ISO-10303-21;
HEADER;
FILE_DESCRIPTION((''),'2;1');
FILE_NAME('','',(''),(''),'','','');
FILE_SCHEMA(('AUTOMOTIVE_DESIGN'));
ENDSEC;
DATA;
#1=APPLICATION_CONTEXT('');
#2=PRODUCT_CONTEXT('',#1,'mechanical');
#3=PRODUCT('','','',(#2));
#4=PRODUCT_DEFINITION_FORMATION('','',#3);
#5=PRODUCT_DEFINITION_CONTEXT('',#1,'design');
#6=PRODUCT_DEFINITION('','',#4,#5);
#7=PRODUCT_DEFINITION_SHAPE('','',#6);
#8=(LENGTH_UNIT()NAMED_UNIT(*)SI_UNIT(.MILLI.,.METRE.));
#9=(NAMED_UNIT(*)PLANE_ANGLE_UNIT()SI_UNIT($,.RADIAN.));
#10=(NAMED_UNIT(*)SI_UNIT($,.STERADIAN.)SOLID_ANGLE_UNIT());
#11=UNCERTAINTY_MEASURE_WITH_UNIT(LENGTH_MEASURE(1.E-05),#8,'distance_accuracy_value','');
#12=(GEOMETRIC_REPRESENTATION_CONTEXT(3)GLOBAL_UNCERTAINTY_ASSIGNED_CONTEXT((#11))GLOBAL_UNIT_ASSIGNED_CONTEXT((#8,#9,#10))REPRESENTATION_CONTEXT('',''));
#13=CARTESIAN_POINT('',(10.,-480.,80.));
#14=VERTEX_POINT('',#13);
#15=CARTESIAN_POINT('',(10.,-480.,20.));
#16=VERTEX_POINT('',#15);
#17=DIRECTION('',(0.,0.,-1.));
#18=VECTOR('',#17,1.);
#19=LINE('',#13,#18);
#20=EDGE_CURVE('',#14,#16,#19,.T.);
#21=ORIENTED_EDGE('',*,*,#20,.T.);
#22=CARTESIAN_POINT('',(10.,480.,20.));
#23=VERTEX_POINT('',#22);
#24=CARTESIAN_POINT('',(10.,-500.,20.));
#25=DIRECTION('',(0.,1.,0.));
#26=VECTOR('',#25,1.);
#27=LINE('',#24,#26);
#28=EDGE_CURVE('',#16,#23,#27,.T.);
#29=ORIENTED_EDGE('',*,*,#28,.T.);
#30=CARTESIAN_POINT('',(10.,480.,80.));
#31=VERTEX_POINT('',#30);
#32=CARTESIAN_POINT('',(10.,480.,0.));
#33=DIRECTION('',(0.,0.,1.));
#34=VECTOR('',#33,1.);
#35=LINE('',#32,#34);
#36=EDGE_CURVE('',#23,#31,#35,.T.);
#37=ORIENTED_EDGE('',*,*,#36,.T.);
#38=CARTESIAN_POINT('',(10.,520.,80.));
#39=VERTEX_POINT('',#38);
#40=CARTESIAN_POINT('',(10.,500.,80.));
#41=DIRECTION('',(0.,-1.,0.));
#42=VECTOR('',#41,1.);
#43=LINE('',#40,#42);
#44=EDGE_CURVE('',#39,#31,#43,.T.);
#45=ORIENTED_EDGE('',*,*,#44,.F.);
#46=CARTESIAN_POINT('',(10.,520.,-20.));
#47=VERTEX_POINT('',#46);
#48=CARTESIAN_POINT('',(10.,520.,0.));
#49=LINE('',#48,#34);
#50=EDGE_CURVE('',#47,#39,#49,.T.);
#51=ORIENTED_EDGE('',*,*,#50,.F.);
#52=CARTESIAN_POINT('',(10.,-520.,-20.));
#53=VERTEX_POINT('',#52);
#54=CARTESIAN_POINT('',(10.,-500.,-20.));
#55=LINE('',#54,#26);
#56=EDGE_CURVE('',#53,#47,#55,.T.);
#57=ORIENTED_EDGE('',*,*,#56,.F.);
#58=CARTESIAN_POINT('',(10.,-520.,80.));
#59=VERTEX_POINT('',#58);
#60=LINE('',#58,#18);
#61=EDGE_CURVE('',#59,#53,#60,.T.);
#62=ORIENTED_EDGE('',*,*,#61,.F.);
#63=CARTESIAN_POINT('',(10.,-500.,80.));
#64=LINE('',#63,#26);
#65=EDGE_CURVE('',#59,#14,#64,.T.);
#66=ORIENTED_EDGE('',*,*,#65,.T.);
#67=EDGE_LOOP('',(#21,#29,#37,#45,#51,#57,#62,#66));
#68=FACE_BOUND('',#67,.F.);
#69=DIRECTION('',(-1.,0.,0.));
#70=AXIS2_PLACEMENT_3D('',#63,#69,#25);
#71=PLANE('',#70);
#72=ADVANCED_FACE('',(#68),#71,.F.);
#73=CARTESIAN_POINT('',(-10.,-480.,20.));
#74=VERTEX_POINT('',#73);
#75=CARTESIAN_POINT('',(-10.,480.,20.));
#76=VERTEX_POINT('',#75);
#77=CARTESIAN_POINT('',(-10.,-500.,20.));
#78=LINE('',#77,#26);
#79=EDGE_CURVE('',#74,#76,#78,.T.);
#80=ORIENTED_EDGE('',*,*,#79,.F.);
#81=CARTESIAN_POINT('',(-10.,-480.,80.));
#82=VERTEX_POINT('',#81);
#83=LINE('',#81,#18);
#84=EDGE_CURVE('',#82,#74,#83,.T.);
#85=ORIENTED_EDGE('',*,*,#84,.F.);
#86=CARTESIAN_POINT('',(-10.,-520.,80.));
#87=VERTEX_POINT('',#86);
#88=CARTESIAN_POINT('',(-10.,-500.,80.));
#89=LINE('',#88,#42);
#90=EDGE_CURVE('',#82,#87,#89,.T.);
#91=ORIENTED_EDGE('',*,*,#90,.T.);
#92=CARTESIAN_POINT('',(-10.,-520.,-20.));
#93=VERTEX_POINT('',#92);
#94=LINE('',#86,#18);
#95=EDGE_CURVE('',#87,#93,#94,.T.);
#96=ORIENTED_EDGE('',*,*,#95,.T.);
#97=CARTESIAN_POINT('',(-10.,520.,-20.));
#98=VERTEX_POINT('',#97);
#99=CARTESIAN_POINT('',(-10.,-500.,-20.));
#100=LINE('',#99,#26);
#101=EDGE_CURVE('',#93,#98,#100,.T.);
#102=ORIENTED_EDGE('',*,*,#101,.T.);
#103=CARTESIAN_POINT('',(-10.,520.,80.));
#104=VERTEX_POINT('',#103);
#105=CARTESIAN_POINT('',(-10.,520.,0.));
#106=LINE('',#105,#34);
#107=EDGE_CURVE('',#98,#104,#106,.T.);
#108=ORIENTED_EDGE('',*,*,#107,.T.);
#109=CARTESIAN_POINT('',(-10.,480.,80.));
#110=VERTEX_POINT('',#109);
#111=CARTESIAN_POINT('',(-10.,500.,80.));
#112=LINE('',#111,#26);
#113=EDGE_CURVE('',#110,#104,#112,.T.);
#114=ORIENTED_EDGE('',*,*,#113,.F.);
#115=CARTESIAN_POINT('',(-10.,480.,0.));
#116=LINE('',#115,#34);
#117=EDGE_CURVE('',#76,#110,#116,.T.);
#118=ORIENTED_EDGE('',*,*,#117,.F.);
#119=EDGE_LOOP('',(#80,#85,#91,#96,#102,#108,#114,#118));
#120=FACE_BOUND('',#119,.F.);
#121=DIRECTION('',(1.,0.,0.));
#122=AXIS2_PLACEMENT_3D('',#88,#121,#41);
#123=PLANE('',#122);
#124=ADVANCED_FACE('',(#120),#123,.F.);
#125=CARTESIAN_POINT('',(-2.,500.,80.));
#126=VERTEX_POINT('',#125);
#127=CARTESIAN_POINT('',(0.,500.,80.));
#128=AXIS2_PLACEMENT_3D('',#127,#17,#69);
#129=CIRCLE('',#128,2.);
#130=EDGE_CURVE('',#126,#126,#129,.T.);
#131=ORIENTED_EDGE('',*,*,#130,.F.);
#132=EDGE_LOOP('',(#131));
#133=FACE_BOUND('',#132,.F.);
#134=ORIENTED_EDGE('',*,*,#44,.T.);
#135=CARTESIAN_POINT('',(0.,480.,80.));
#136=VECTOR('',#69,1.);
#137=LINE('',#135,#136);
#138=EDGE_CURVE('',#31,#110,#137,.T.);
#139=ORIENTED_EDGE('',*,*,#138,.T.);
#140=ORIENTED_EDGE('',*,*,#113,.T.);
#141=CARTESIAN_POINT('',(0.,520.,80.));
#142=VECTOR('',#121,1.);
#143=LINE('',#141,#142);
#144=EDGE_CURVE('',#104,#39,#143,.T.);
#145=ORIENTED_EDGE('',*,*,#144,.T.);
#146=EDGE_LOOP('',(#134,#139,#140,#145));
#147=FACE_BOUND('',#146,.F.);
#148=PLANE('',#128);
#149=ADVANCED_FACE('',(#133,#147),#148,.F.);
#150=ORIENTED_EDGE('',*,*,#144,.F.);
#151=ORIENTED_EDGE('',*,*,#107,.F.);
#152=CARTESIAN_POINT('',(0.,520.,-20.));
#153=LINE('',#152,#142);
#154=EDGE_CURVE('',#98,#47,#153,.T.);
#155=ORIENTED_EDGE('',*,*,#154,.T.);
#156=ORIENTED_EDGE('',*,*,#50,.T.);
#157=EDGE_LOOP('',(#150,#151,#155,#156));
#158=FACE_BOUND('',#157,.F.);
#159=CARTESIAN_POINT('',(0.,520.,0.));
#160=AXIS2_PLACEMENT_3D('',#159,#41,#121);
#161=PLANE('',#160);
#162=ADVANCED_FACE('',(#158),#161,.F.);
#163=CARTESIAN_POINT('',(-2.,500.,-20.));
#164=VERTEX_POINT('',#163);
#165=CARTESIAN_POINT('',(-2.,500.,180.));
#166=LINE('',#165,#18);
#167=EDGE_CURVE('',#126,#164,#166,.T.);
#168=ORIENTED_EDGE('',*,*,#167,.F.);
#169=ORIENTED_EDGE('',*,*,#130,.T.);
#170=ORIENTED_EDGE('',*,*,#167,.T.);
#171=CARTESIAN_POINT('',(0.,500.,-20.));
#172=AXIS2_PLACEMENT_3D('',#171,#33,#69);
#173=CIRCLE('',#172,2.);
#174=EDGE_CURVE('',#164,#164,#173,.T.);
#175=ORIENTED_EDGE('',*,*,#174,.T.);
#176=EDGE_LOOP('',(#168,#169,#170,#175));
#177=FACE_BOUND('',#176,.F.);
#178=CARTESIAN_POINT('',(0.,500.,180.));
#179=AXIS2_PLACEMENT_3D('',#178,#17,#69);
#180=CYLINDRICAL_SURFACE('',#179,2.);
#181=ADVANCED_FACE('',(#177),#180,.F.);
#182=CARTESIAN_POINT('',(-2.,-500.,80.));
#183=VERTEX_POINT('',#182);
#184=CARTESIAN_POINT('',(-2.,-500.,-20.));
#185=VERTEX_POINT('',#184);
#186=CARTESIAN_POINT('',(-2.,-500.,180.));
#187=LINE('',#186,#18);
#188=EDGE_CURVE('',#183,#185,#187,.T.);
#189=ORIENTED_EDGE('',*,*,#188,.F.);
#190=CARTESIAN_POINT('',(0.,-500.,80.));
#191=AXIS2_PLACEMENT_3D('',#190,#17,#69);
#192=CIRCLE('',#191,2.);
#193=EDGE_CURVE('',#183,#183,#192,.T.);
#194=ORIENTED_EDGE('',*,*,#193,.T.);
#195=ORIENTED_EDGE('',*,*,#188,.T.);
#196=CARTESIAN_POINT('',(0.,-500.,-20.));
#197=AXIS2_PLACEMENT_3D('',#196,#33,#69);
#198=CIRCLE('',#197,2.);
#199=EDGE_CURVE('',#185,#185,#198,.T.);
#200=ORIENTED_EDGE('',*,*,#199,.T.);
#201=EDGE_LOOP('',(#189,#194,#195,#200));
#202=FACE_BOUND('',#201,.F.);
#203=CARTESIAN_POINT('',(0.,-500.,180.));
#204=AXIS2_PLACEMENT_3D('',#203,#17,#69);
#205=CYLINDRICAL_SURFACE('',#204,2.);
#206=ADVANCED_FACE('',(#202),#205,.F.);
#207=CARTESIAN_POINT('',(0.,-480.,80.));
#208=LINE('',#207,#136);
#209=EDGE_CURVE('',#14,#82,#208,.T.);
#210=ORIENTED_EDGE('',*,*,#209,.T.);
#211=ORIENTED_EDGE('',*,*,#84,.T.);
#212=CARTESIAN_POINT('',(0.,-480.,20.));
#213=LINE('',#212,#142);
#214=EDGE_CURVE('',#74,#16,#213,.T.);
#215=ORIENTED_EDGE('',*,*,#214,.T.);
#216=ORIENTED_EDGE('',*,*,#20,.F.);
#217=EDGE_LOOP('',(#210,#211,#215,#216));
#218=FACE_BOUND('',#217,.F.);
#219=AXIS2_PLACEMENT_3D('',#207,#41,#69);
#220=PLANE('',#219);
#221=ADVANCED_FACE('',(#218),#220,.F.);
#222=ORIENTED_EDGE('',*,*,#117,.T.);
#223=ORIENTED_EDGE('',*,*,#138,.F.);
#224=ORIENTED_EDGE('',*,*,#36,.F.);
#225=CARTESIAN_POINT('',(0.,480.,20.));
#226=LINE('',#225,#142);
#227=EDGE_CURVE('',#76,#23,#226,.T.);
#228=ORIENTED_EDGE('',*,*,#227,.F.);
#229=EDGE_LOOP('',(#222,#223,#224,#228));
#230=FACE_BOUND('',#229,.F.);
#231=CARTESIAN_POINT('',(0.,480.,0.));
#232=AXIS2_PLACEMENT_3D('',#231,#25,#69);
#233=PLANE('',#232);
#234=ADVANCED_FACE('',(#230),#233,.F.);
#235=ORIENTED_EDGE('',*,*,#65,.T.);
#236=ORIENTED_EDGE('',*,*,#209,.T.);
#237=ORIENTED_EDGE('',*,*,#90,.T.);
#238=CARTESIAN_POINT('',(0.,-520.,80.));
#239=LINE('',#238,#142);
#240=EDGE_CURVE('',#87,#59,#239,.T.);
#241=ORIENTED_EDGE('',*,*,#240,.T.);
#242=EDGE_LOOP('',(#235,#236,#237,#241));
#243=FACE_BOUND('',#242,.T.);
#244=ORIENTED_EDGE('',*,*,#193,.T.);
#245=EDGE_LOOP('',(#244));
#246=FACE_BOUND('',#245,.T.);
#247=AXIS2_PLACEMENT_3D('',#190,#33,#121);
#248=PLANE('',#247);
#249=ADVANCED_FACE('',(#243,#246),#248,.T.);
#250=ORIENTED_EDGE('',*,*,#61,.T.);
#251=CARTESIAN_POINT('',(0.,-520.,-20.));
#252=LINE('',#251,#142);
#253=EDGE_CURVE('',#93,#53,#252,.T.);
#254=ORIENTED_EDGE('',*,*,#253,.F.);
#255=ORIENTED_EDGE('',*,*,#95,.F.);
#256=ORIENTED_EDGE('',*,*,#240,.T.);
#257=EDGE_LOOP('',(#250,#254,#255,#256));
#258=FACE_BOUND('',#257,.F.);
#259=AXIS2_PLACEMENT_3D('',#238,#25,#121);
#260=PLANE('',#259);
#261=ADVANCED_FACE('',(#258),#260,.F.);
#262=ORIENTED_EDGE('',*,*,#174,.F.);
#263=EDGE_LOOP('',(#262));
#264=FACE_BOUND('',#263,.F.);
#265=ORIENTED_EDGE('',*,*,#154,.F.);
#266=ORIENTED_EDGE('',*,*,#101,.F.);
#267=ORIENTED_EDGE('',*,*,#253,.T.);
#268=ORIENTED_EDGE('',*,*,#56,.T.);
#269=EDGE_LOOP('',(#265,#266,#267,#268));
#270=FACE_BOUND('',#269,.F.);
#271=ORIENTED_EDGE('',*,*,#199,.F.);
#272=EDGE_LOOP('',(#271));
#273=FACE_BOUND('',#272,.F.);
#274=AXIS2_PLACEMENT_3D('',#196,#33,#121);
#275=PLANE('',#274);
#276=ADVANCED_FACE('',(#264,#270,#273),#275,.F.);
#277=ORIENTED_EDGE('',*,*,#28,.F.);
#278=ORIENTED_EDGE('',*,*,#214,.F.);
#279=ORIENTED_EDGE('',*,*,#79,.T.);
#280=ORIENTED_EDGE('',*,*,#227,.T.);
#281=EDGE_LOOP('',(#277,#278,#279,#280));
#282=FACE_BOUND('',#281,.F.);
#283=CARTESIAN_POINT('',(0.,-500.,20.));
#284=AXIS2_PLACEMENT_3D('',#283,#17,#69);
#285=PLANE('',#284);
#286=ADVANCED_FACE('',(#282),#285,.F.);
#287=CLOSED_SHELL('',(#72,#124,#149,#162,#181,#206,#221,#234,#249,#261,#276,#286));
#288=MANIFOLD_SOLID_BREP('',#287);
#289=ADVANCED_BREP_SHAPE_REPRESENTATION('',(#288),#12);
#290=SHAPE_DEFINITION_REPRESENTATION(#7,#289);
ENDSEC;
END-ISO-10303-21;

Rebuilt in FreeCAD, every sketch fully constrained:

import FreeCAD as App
import Part
import Sketcher
Q = App.Units.Quantity


def add_polygon(sketch, points):
    """Adds a closed chain of lines whose ends are joined by coincident constraints."""
    first, n = sketch.GeometryCount, len(points)
    for a, b in zip(points, points[1:] + points[:1]):
        sketch.addGeometry(Part.LineSegment(App.Vector(*a, 0), App.Vector(*b, 0)), False)
    for i in range(n):
        sketch.addConstraint(Sketcher.Constraint("Coincident", first + i, 2, first + (i + 1) % n, 1))

doc = App.newDocument("Part")
body = doc.addObject("PartDesign::Body", "Body")

sketch1 = body.newObject("Sketcher::SketchObject", "Sketch")
sketch1.AttachmentSupport = (doc.getObject("XY_Plane"), [""])
sketch1.MapMode = "FlatFace"
sketch1.AttachmentOffset = App.Placement(App.Vector(0, 0, 80), App.Rotation())
add_polygon(sketch1, [(-10, -480), (-10, -520), (10, -520), (10, -480)])
sketch1.addConstraint([
    Sketcher.Constraint("Vertical", 0),
    Sketcher.Constraint("Horizontal", 1),
    Sketcher.Constraint("Vertical", 2),
    Sketcher.Constraint("Horizontal", 3),
    Sketcher.Constraint("DistanceX", 1, 1, 1, 2, Q("20 mm")),
    Sketcher.Constraint("DistanceY", 0, 2, 0, 1, Q("40 mm")),
    Sketcher.Constraint("DistanceX", 0, 2, -1, 1, Q("10 mm")),
    Sketcher.Constraint("DistanceY", 0, 2, -1, 1, Q("520 mm")),
])

sketch2 = body.newObject("Sketcher::SketchObject", "Sketch001")
sketch2.AttachmentSupport = (doc.getObject("YZ_Plane"), [""])
sketch2.MapMode = "FlatFace"
sketch2.addGeometry([
    Part.LineSegment(App.Vector(-500, 80, 0), App.Vector(-500, 0, 0)),
    Part.LineSegment(App.Vector(-500, 0, 0), App.Vector(500, 0, 0)),
    Part.LineSegment(App.Vector(500, 0, 0), App.Vector(500, 80, 0)),
], False)
sketch2.addConstraint([
    Sketcher.Constraint("Coincident", 0, 2, 1, 1),
    Sketcher.Constraint("Coincident", 1, 2, 2, 1),
    Sketcher.Constraint("Vertical", 0),
    Sketcher.Constraint("Horizontal", 1),
    Sketcher.Constraint("Vertical", 2),
    Sketcher.Constraint("Symmetric", 0, 2, 1, 2, -1, 1),
    Sketcher.Constraint("Horizontal", 0, 1, 2, 2),
    Sketcher.Constraint("DistanceX", 1, 1, 1, 2, Q("1000 mm")),
    Sketcher.Constraint("DistanceY", 0, 2, 0, 1, Q("80 mm")),
])
doc.recompute()

additivepipe = body.newObject("PartDesign::AdditivePipe", "AdditivePipe")
additivepipe.Profile = sketch1
additivepipe.Spine = (sketch2, ["Edge1", "Edge2", "Edge3"])
additivepipe.Transition = "Right corner"

sketch3 = body.newObject("Sketcher::SketchObject", "Sketch002")
sketch3.AttachmentSupport = (doc.getObject("XY_Plane"), [""])
sketch3.MapMode = "FlatFace"
sketch3.AttachmentOffset = App.Placement(App.Vector(0, 0, 80), App.Rotation())
sketch3.addGeometry(Part.Circle(App.Vector(0, -500, 0), App.Vector(0, 0, 1), 2), False)
sketch3.addConstraint([
    Sketcher.Constraint("PointOnObject", 0, 3, -2),
    Sketcher.Constraint("Diameter", 0, Q("4 mm")),
    Sketcher.Constraint("DistanceY", 0, 3, -1, 1, Q("500 mm")),
])
doc.recompute()
hole = body.newObject("PartDesign::Hole", "Hole")
hole.Profile = sketch3
hole.ThreadType = "None"
hole.Diameter = 4
hole.DepthType = "Dimension"
hole.Depth = 100
hole.DrillPoint = "Angled"
hole.DrillPointAngle = 118

sketch4 = body.newObject("Sketcher::SketchObject", "Sketch003")
sketch4.AttachmentSupport = (doc.getObject("XY_Plane"), [""])
sketch4.MapMode = "FlatFace"
sketch4.AttachmentOffset = App.Placement(App.Vector(0, 0, 80), App.Rotation())
sketch4.addGeometry(Part.Circle(App.Vector(0, 500, 0), App.Vector(0, 0, 1), 2), False)
sketch4.addConstraint([
    Sketcher.Constraint("PointOnObject", 0, 3, -2),
    Sketcher.Constraint("Diameter", 0, Q("4 mm")),
    Sketcher.Constraint("DistanceY", -1, 1, 0, 3, Q("500 mm")),
])
doc.recompute()
hole2 = body.newObject("PartDesign::Hole", "Hole001")
hole2.Profile = sketch4
hole2.ThreadType = "None"
hole2.Diameter = 4
hole2.DepthType = "Dimension"
hole2.Depth = 100
hole2.DrillPoint = "Angled"
hole2.DrillPointAngle = 118

doc.recompute()
